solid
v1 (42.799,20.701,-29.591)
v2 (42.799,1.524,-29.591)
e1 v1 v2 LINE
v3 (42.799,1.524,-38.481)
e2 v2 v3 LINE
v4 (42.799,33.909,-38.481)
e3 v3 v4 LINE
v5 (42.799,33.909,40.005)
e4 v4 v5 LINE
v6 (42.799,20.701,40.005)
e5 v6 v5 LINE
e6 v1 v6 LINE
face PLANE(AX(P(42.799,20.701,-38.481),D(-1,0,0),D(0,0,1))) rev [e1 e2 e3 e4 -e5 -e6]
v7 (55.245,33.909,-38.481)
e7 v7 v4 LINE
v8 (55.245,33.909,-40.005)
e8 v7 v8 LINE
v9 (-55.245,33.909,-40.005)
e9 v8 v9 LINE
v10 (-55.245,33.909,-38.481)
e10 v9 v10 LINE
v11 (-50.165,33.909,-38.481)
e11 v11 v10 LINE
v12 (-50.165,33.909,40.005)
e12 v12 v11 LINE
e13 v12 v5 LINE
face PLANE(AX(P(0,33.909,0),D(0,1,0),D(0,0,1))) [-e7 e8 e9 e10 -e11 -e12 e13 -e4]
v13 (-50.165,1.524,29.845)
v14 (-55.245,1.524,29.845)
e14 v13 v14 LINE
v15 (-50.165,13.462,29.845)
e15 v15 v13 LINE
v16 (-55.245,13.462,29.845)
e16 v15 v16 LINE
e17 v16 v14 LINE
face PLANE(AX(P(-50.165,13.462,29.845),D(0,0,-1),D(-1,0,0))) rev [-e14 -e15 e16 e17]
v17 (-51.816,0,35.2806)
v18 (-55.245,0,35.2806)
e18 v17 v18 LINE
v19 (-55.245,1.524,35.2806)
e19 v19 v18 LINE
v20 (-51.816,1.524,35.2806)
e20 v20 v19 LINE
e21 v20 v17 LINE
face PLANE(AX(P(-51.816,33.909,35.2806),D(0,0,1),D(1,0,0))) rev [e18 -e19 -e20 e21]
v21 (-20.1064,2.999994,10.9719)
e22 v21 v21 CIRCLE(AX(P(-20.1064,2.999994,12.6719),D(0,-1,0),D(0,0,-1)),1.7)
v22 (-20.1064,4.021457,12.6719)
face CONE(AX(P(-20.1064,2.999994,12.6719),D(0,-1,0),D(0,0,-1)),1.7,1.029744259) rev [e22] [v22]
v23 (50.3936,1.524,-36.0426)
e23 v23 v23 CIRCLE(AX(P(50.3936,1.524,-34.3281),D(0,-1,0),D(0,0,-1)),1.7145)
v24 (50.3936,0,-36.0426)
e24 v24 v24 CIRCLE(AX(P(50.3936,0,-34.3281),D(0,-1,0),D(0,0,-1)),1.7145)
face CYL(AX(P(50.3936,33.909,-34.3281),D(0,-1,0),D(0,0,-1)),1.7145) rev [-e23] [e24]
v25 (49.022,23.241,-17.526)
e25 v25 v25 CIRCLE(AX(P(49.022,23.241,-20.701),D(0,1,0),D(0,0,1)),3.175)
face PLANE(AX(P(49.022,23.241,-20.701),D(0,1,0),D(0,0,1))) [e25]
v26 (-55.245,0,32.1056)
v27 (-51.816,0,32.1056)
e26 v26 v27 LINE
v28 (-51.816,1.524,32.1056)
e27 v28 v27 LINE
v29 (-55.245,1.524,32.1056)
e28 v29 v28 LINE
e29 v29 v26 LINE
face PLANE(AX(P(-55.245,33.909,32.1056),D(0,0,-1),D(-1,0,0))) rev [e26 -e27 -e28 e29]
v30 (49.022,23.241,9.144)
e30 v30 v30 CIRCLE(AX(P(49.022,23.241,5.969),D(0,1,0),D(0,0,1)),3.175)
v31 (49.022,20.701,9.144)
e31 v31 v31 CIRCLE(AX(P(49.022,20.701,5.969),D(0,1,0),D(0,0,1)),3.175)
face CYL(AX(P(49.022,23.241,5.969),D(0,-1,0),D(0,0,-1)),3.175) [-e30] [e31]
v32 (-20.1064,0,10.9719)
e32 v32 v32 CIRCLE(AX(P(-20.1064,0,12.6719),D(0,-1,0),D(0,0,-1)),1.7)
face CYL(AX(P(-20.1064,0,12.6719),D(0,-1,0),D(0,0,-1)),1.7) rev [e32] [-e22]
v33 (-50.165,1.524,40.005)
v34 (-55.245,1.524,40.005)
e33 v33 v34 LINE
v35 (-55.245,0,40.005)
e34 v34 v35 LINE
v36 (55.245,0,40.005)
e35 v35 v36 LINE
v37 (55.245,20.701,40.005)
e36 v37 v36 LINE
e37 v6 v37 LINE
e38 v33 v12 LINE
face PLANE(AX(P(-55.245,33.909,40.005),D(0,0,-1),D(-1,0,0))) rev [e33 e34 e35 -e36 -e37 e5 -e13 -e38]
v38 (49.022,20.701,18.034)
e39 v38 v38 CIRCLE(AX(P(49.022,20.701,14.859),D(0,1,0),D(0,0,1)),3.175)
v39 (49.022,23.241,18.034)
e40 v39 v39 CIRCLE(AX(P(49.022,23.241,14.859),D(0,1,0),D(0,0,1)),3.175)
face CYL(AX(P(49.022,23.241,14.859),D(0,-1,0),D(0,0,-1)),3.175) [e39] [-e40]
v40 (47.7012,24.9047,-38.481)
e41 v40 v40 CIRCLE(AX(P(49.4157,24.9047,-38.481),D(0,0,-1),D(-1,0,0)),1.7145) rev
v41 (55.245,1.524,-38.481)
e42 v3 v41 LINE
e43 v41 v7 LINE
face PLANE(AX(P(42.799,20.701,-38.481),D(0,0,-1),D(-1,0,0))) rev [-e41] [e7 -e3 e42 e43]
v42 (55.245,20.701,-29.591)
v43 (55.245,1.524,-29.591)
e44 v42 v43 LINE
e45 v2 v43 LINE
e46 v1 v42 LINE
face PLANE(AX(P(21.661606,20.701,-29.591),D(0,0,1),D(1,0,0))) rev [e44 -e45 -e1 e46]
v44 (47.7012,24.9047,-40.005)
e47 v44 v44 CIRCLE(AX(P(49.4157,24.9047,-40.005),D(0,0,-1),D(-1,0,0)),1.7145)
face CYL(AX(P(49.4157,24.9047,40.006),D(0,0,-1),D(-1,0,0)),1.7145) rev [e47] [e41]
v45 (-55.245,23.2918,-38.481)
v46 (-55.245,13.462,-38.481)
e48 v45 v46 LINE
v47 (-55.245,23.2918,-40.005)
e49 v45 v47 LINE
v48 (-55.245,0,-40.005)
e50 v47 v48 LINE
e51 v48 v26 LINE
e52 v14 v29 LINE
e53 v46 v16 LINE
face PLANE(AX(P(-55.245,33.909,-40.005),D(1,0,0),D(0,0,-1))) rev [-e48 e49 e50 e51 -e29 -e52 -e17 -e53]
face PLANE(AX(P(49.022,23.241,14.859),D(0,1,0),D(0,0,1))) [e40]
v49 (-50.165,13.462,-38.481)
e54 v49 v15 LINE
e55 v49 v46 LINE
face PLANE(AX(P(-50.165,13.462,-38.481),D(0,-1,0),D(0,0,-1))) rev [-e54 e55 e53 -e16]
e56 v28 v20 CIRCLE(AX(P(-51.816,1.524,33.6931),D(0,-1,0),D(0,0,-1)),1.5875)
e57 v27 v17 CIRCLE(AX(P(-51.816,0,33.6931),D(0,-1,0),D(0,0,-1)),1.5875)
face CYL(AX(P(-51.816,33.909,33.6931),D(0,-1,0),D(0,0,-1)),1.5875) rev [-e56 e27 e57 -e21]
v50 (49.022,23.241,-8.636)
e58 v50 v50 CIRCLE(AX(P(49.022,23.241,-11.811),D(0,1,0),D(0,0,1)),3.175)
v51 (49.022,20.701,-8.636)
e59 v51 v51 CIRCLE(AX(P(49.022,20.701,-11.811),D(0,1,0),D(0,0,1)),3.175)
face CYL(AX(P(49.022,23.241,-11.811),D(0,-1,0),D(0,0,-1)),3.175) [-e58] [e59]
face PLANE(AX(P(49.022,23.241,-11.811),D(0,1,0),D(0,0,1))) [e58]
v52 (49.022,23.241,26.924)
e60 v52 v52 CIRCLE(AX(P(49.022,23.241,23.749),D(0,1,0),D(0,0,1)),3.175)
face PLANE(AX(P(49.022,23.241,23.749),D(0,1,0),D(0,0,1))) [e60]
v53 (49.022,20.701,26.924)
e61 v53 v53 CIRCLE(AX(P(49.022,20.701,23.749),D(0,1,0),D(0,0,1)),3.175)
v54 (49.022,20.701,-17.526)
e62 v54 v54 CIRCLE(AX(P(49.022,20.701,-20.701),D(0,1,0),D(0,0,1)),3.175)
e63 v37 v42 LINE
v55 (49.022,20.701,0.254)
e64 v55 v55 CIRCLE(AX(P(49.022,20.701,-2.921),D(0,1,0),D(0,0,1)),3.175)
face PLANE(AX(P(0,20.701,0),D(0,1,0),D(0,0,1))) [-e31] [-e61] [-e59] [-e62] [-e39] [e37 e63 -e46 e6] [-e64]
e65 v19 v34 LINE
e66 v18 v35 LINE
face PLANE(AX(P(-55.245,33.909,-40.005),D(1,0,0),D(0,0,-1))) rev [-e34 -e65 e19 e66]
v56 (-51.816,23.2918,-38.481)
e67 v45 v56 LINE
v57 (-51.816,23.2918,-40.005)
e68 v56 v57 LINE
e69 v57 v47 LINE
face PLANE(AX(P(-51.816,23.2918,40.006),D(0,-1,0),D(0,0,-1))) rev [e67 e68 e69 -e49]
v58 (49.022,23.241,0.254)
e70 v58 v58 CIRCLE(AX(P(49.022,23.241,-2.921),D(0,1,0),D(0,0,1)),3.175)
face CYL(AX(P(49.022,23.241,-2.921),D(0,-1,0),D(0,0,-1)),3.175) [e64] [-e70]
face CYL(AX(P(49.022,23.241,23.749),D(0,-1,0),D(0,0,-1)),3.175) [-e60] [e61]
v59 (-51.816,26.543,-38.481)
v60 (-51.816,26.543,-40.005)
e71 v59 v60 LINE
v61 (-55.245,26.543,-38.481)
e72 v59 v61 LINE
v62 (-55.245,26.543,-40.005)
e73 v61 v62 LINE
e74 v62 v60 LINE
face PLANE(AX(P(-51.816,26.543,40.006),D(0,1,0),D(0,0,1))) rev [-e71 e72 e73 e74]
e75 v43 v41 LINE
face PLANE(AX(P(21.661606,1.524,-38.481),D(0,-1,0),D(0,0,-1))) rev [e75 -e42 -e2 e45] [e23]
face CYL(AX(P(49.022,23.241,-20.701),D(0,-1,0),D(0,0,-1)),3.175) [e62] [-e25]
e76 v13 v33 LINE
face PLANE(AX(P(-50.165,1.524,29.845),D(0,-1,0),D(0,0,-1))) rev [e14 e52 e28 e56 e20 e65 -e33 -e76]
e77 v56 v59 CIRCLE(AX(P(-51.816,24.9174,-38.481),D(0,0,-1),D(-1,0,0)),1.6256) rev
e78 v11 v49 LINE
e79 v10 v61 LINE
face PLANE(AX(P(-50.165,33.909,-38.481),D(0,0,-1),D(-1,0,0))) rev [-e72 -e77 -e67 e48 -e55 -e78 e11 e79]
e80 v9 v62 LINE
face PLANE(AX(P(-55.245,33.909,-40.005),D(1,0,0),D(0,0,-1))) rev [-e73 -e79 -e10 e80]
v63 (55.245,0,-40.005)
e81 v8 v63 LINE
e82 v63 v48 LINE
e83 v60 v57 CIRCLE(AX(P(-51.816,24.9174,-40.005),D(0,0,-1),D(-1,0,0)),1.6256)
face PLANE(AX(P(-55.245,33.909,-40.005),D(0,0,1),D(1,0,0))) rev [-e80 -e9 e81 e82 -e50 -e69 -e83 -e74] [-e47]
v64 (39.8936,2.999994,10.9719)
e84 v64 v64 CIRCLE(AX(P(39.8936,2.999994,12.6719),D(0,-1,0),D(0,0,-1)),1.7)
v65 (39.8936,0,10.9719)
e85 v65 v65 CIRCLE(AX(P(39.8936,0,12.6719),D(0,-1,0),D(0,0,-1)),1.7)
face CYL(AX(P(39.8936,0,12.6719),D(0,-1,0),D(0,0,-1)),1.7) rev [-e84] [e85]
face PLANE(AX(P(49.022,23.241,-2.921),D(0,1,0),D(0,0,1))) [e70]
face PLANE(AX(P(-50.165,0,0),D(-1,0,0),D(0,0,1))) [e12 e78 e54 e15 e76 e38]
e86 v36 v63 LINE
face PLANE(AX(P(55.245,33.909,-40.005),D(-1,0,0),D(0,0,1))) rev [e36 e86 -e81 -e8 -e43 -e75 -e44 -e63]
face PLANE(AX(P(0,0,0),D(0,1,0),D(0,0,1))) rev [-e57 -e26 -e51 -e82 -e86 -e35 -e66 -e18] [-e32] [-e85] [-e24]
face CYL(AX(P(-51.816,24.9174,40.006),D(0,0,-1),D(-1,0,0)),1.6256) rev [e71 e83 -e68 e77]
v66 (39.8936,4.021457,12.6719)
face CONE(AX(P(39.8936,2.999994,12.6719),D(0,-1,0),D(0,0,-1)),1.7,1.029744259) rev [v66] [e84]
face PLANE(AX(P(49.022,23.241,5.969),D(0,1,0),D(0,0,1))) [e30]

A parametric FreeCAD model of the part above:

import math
import FreeCAD as App
import Part
import Sketcher
from FreeCAD import Vector
Q = App.Units.Quantity

doc = App.newDocument("Part")
params = doc.addObject("Spreadsheet::Sheet", "Params")
for row, (alias, value) in enumerate([
    ("sketch1_width", "4.35 in"),
    ("sketch1_height", "3.15 in"),
    ("pad1_length", "1.335 in"),
    ("sketch2_width", "0.49 in"),
    ("sketch2_height", "3.09 in"),
    ("pocket1_length", "0.52 in"),
    ("sketch3_height", "0.35 in"),
    ("sketch3_width", "0.755 in"),
    ("pocket2_length", "0.49 in"),
    ("sketch4_height", "0.4 in"),
    ("sketch4_width", "0.47 in"),
    ("sketch4_height2", "3.09 in"),
    ("sketch4_width2", "0.805 in"),
    ("pocket3_length", "0.2 in"),
    ("sketch5_diameter", "0.135 in"),
    ("sketch6_radius", "0.064 in"),
    ("sketch6_width", "0.135 in"),
    ("sketch7_diameter", "0.135 in"),
    ("sketch7_radius", "0.0625 in"),
    ("sketch7_width", "0.135 in"),
    ("sketch8_diameter", "0.25 in"),
    ("pad2_length", "0.1 in"),
    ("linearpattern_pitch", "0.35 in"),
    ("hole_diameter", "3.4 mm"),
    ("hole_depth", "2.999994 mm"),
], start=1):
    params.set(f"A{row}", alias)
    params.set(f"B{row}", "=" + value)
    params.setAlias(f"B{row}", alias)

body = doc.addObject("PartDesign::Body", "Body")

# Sketch on XZ plane
sketch1 = body.newObject("Sketcher::SketchObject", "Sketch")
sketch1.AttachmentSupport = (doc.getObject("XZ_Plane"), [""])
sketch1.MapMode = "FlatFace"
sketch1.addGeometry([
    Part.LineSegment(Vector(-55, -40, 0), Vector(-55, 40, 0)),
    Part.LineSegment(Vector(-55, 40, 0), Vector(55, 40, 0)),
    Part.LineSegment(Vector(55, 40, 0), Vector(55, -40, 0)),
    Part.LineSegment(Vector(55, -40, 0), Vector(-55, -40, 0)),
], False)
sketch1.addConstraint([
    Sketcher.Constraint("Coincident", 0, 2, 1, 1),
    Sketcher.Constraint("Coincident", 1, 2, 2, 1),
    Sketcher.Constraint("Coincident", 2, 2, 3, 1),
    Sketcher.Constraint("Coincident", 3, 2, 0, 1),
    Sketcher.Constraint("Vertical", 0),
    Sketcher.Constraint("Horizontal", 1),
    Sketcher.Constraint("Vertical", 2),
    Sketcher.Constraint("Horizontal", 3),
    Sketcher.Constraint("Symmetric", 0, 2, 2, 2, -1, 1),
    Sketcher.Constraint("DistanceX", 1, 1, 1, 2, Q("4.35 in")),
    Sketcher.Constraint("DistanceY", 0, 1, 0, 2, Q("3.15 in")),
])
sketch1.setExpression("Constraints[9]", "Params.sketch1_width")
sketch1.setExpression("Constraints[10]", "Params.sketch1_height")
pad1 = body.newObject("PartDesign::Pad", "Pad")
pad1.Profile = sketch1
pad1.setExpression("Length", "Params.pad1_length")
pad1.Reversed = True

# Sketch on XZ plane
sketch2 = body.newObject("Sketcher::SketchObject", "Sketch001")
sketch2.AttachmentSupport = (doc.getObject("XZ_Plane"), [""])
sketch2.MapMode = "FlatFace"
sketch2.AttachmentOffset = App.Placement(Vector(0, 0, -1.335 * 25.4), App.Rotation())
sketch2.addGeometry([
    Part.LineSegment(Vector(43, -38, 0), Vector(43, 40, 0)),
    Part.LineSegment(Vector(43, 40, 0), Vector(55, 40, 0)),
    Part.LineSegment(Vector(55, 40, 0), Vector(55, -38, 0)),
    Part.LineSegment(Vector(55, -38, 0), Vector(43, -38, 0)),
], False)
sketch2.addConstraint([
    Sketcher.Constraint("Coincident", 0, 2, 1, 1),
    Sketcher.Constraint("Coincident", 1, 2, 2, 1),
    Sketcher.Constraint("Coincident", 2, 2, 3, 1),
    Sketcher.Constraint("Coincident", 3, 2, 0, 1),
    Sketcher.Constraint("Vertical", 0),
    Sketcher.Constraint("Horizontal", 1),
    Sketcher.Constraint("Vertical", 2),
    Sketcher.Constraint("Horizontal", 3),
    Sketcher.Constraint("DistanceX", 1, 1, 1, 2, Q("0.49 in")),
    Sketcher.Constraint("DistanceY", 0, 1, 0, 2, Q("3.09 in")),
    Sketcher.Constraint("DistanceX", -1, 1, 0, 2, Q("1.685 in")),
    Sketcher.Constraint("DistanceY", -1, 1, 0, 2, Q("1.575 in")),
])
sketch2.setExpression("Constraints[8]", "Params.sketch2_width")
sketch2.setExpression("Constraints[9]", "Params.sketch2_height")
pocket1 = body.newObject("PartDesign::Pocket", "Pocket")
pocket1.Profile = sketch2
pocket1.setExpression("Length", "Params.pocket1_length")
pocket1.Reversed = True

# Sketch on YZ plane
sketch3 = body.newObject("Sketcher::SketchObject", "Sketch002")
sketch3.AttachmentSupport = (doc.getObject("YZ_Plane"), [""])
sketch3.MapMode = "FlatFace"
sketch3.AttachmentOffset = App.Placement(Vector(0, 0, 2.175 * 25.4), App.Rotation())
sketch3.addGeometry([
    Part.LineSegment(Vector(21, -30, 0), Vector(2, -30, 0)),
    Part.LineSegment(Vector(2, -30, 0), Vector(2, -38, 0)),
    Part.LineSegment(Vector(2, -38, 0), Vector(21, -38, 0)),
    Part.LineSegment(Vector(21, -38, 0), Vector(21, -30, 0)),
], False)
sketch3.addConstraint([
    Sketcher.Constraint("Coincident", 0, 2, 1, 1),
    Sketcher.Constraint("Coincident", 1, 2, 2, 1),
    Sketcher.Constraint("Coincident", 2, 2, 3, 1),
    Sketcher.Constraint("Coincident", 3, 2, 0, 1),
    Sketcher.Constraint("Horizontal", 0),
    Sketcher.Constraint("Vertical", 1),
    Sketcher.Constraint("Horizontal", 2),
    Sketcher.Constraint("Vertical", 3),
    Sketcher.Constraint("DistanceY", 1, 2, 1, 1, Q("0.35 in")),
    Sketcher.Constraint("DistanceX", 0, 2, 0, 1, Q("0.755 in")),
    Sketcher.Constraint("DistanceX", -1, 1, 0, 2, Q("0.06 in")),
    Sketcher.Constraint("DistanceY", 0, 2, -1, 1, Q("1.165 in")),
])
sketch3.setExpression("Constraints[8]", "Params.sketch3_height")
sketch3.setExpression("Constraints[9]", "Params.sketch3_width")
pocket2 = body.newObject("PartDesign::Pocket", "Pocket001")
pocket2.Profile = sketch3
pocket2.setExpression("Length", "Params.pocket2_length")

# Sketch on YZ plane
sketch4 = body.newObject("Sketcher::SketchObject", "Sketch003")
sketch4.AttachmentSupport = (doc.getObject("YZ_Plane"), [""])
sketch4.MapMode = "FlatFace"
sketch4.AttachmentOffset = App.Placement(Vector(0, 0, -2.175 * 25.4), App.Rotation())
sketch4.addGeometry([
    Part.LineSegment(Vector(34, 40, 0), Vector(34, -38, 0)),  # 0
    Part.LineSegment(Vector(34, -38, 0), Vector(13, -38, 0)),  # 1
    Part.LineSegment(Vector(13, -38, 0), Vector(13, 30, 0)),  # 2
    Part.LineSegment(Vector(13, 30, 0), Vector(2, 30, 0)),  # 3
    Part.LineSegment(Vector(2, 30, 0), Vector(2, 40, 0)),  # 4
    Part.LineSegment(Vector(2, 40, 0), Vector(34, 40, 0)),  # 5
], False)
sketch4.addConstraint([
    Sketcher.Constraint("Coincident", 0, 2, 1, 1),
    Sketcher.Constraint("Coincident", 1, 2, 2, 1),
    Sketcher.Constraint("Coincident", 2, 2, 3, 1),
    Sketcher.Constraint("Coincident", 3, 2, 4, 1),
    Sketcher.Constraint("Coincident", 4, 2, 5, 1),
    Sketcher.Constraint("Coincident", 5, 2, 0, 1),
    Sketcher.Constraint("Vertical", 0),
    Sketcher.Constraint("Horizontal", 1),
    Sketcher.Constraint("Vertical", 2),
    Sketcher.Constraint("Horizontal", 3),
    Sketcher.Constraint("Vertical", 4),
    Sketcher.Constraint("Horizontal", 5),
    Sketcher.Constraint("DistanceY", 4, 1, 4, 2, Q("0.4 in")),
    Sketcher.Constraint("DistanceX", 3, 2, 3, 1, Q("0.47 in")),
    Sketcher.Constraint("DistanceY", 0, 2, 0, 1, Q("3.09 in")),
    Sketcher.Constraint("DistanceX", 1, 2, 1, 1, Q("0.805 in")),
    Sketcher.Constraint("DistanceX", -1, 1, 1, 2, Q("0.53 in")),
    Sketcher.Constraint("DistanceY", 0, 2, -1, 1, Q("1.515 in")),
])
sketch4.setExpression("Constraints[12]", "Params.sketch4_height")
sketch4.setExpression("Constraints[13]", "Params.sketch4_width")
sketch4.setExpression("Constraints[14]", "Params.sketch4_height2")
sketch4.setExpression("Constraints[15]", "Params.sketch4_width2")
pocket3 = body.newObject("PartDesign::Pocket", "Pocket002")
pocket3.Profile = sketch4
pocket3.setExpression("Length", "Params.pocket3_length")
pocket3.Reversed = True

# Sketch on XY plane
sketch5 = body.newObject("Sketcher::SketchObject", "Sketch004")
sketch5.AttachmentSupport = (doc.getObject("XY_Plane"), [""])
sketch5.MapMode = "FlatFace"
sketch5.AttachmentOffset = App.Placement(Vector(0, 0, -1.575 * 25.4), App.Rotation())
sketch5.addGeometry(Part.Circle(Vector(49.4, 24.9, 0), Vector(0, 0, 1), 1.7), False)
sketch5.addConstraint([
    Sketcher.Constraint("Diameter", 0, Q("0.135 in")),
    Sketcher.Constraint("DistanceX", -1, 1, 0, 3, Q("1.9455 in")),
    Sketcher.Constraint("DistanceY", -1, 1, 0, 3, Q("0.9805 in")),
])
sketch5.setExpression("Constraints[0]", "Params.sketch5_diameter")
pocket4 = body.newObject("PartDesign::Pocket", "Pocket003")
pocket4.Profile = sketch5
pocket4.Type = "UpToFirst"
pocket4.Reversed = True

# Sketch on XY plane
sketch6 = body.newObject("Sketcher::SketchObject", "Sketch005")
sketch6.AttachmentSupport = (doc.getObject("XY_Plane"), [""])
sketch6.MapMode = "FlatFace"
sketch6.AttachmentOffset = App.Placement(Vector(0, 0, -1.575 * 25.4), App.Rotation())
sketch6.addGeometry([
    Part.LineSegment(Vector(-55.2, 26.5, 0), Vector(-51.8, 26.5, 0)),
    Part.ArcOfCircle(Part.Circle(Vector(-51.8, 24.9, 0), Vector(0, 0, 1), 1.6), math.radians(-90), math.radians(90)),
    Part.LineSegment(Vector(-51.8, 23.3, 0), Vector(-55.2, 23.3, 0)),
    Part.LineSegment(Vector(-55.2, 23.3, 0), Vector(-55.2, 26.5, 0)),
], False)
sketch6.addConstraint([
    Sketcher.Constraint("Tangent", 0, 2, 1, 2),
    Sketcher.Constraint("Tangent", 1, 1, 2, 1),
    Sketcher.Constraint("Coincident", 2, 2, 3, 1),
    Sketcher.Constraint("Coincident", 3, 2, 0, 1),
    Sketcher.Constraint("Horizontal", 0),
    Sketcher.Constraint("Horizontal", 2),
    Sketcher.Constraint("Vertical", 3),
    Sketcher.Constraint("Radius", 1, Q("0.064 in")),
    Sketcher.Constraint("DistanceX", 0, 1, 0, 2, Q("0.135 in")),
    Sketcher.Constraint("DistanceX", 1, 3, -1, 1, Q("2.04 in")),
    Sketcher.Constraint("DistanceY", -1, 1, 1, 3, Q("0.981 in")),
])
sketch6.setExpression("Constraints[7]", "Params.sketch6_radius")
sketch6.setExpression("Constraints[8]", "Params.sketch6_width")
pocket5 = body.newObject("PartDesign::Pocket", "Pocket004")
pocket5.Profile = sketch6
pocket5.Type = "UpToFirst"
pocket5.Reversed = True

# Sketch on XZ plane
sketch7 = body.newObject("Sketcher::SketchObject", "Sketch006")
sketch7.AttachmentSupport = (doc.getObject("XZ_Plane"), [""])
sketch7.MapMode = "FlatFace"
sketch7.addGeometry([
    Part.Circle(Vector(50.4, -34.3, 0), Vector(0, 0, 1), 1.7),  # 0
    Part.LineSegment(Vector(-51.8, 35.3, 0), Vector(-55.2, 35.3, 0)),  # 1
    Part.LineSegment(Vector(-55.2, 35.3, 0), Vector(-55.2, 32.1, 0)),  # 2
    Part.LineSegment(Vector(-55.2, 32.1, 0), Vector(-51.8, 32.1, 0)),  # 3
    Part.ArcOfCircle(Part.Circle(Vector(-51.8, 33.7, 0), Vector(0, 0, 1), 1.6), math.radians(-90), math.radians(90)),  # 4
], False)
sketch7.addConstraint([
    Sketcher.Constraint("Coincident", 1, 2, 2, 1),
    Sketcher.Constraint("Coincident", 2, 2, 3, 1),
    Sketcher.Constraint("Tangent", 3, 2, 4, 1),
    Sketcher.Constraint("Tangent", 4, 2, 1, 1),
    Sketcher.Constraint("Horizontal", 1),
    Sketcher.Constraint("Vertical", 2),
    Sketcher.Constraint("Horizontal", 3),
    Sketcher.Constraint("Diameter", 0, Q("0.135 in")),
    Sketcher.Constraint("Radius", 4, Q("0.0625 in")),
    Sketcher.Constraint("DistanceX", 1, 2, 1, 1, Q("0.135 in")),
    Sketcher.Constraint("DistanceX", 4, 3, -1, 1, Q("2.04 in")),
    Sketcher.Constraint("DistanceX", -1, 1, 0, 3, Q("1.984 in")),
    Sketcher.Constraint("DistanceY", -1, 1, 1, 2, Q("1.389 in")),
    Sketcher.Constraint("DistanceY", 0, 3, 4, 3, Q("2.678 in")),
])
sketch7.setExpression("Constraints[7]", "Params.sketch7_diameter")
sketch7.setExpression("Constraints[8]", "Params.sketch7_radius")
sketch7.setExpression("Constraints[9]", "Params.sketch7_width")
pocket6 = body.newObject("PartDesign::Pocket", "Pocket005")
pocket6.Profile = sketch7
pocket6.Type = "ThroughAll"

# Sketch on XZ plane
sketch8 = body.newObject("Sketcher::SketchObject", "Sketch007")
sketch8.AttachmentSupport = (doc.getObject("XZ_Plane"), [""])
sketch8.MapMode = "FlatFace"
sketch8.AttachmentOffset = App.Placement(Vector(0, 0, -0.815 * 25.4), App.Rotation())
sketch8.addGeometry(Part.Circle(Vector(49, -20.7, 0), Vector(0, 0, 1), 3.2), False)
sketch8.addConstraint([
    Sketcher.Constraint("Diameter", 0, Q("0.25 in")),
    Sketcher.Constraint("DistanceX", -1, 1, 0, 3, Q("1.93 in")),
    Sketcher.Constraint("DistanceY", 0, 3, -1, 1, Q("0.815 in")),
])
sketch8.setExpression("Constraints[0]", "Params.sketch8_diameter")
pad2 = body.newObject("PartDesign::Pad", "Pad001")
pad2.Profile = sketch8
pad2.setExpression("Length", "Params.pad2_length")
pad2.Reversed = True
doc.recompute()

linearpattern = body.newObject("PartDesign::LinearPattern", "LinearPattern")
linearpattern.Originals = [pad2]
linearpattern.Direction = (doc.getObject("Z_Axis"), [""])
linearpattern.Mode = "offset"
linearpattern.setExpression("Offset", "Params.linearpattern_pitch")
linearpattern.Occurrences = 6
body.Tip = linearpattern

# Sketch on XZ plane
sketch9 = body.newObject("Sketcher::SketchObject", "Sketch008")
sketch9.AttachmentSupport = (doc.getObject("XZ_Plane"), [""])
sketch9.MapMode = "FlatFace"
sketch9.addGeometry([
    Part.Circle(Vector(39.9, 12.7, 0), Vector(0, 0, 1), 1.7),
    Part.Circle(Vector(-20.1, 12.7, 0), Vector(0, 0, 1), 1.7),
], False)
sketch9.addConstraint([
    Sketcher.Constraint("Equal", 0, 1),
    Sketcher.Constraint("Horizontal", 0, 3, 1, 3),
    Sketcher.Constraint("Diameter", 0, Q("3.4 mm")),
    Sketcher.Constraint("DistanceX", -1, 1, 0, 3, Q("39.8936 mm")),
    Sketcher.Constraint("DistanceY", -1, 1, 0, 3, Q("12.6719 mm")),
    Sketcher.Constraint("DistanceX", 1, 3, -1, 1, Q("20.1064 mm")),
])
doc.recompute()
hole = body.newObject("PartDesign::Hole", "Hole")
hole.Profile = sketch9
hole.ThreadType = "None"
hole.setExpression("Diameter", "Params.hole_diameter")
hole.DepthType = "Dimension"
hole.setExpression("Depth", "Params.hole_depth")
hole.DrillPoint = "Angled"
hole.DrillPointAngle = 118

doc.recompute()
